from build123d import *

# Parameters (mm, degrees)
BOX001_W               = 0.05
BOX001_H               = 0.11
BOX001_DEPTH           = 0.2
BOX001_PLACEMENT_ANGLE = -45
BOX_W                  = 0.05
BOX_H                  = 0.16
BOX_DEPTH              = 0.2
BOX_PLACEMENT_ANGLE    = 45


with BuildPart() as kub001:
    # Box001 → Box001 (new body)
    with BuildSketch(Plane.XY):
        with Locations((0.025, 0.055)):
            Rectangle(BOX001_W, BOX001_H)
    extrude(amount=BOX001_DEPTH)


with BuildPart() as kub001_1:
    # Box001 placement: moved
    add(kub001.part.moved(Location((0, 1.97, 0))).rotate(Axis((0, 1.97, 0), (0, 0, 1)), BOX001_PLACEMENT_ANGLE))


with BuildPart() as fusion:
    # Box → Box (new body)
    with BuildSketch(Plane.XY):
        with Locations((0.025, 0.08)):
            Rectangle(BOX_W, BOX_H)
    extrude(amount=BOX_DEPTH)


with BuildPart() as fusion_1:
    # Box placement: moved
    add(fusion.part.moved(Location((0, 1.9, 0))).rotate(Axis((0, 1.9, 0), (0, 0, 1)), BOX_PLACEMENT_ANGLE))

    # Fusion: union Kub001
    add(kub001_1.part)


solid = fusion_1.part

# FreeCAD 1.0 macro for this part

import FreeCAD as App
import Part
import Sketcher

V = App.Vector


def add_polygon(sketch, points):
    """Adds a closed chain of lines whose ends are joined by coincident constraints."""
    first, n = sketch.GeometryCount, len(points)
    for a, b in zip(points, points[1:] + points[:1]):
        sketch.addGeometry(Part.LineSegment(App.Vector(*a, 0), App.Vector(*b, 0)), False)
    for i in range(n):
        sketch.addConstraint(Sketcher.Constraint("Coincident", first + i, 2, first + (i + 1) % n, 1))

doc = App.newDocument("Part")
body = doc.addObject("PartDesign::Body", "Body")

# Sketch on XY plane
sketch1 = body.newObject("Sketcher::SketchObject", "Sketch")
sketch1.AttachmentSupport = (doc.getObject("XY_Plane"), [""])
sketch1.MapMode = "FlatFace"
add_polygon(sketch1, [(0, 0.11), (0, 0), (0.05, 0), (0.05, 0.11)])  # lines 0-3
sketch1.addConstraint([
    Sketcher.Constraint("Vertical", 0),
    Sketcher.Constraint("Horizontal", 1),
    Sketcher.Constraint("Vertical", 2),
    Sketcher.Constraint("Horizontal", 3),
    Sketcher.Constraint("Coincident", 0, 2, -1, 1),
    Sketcher.Constraint("DistanceX", 1, 1, 1, 2, 0.05),
    Sketcher.Constraint("DistanceY", 0, 2, 0, 1, 0.11),
])
pad1 = body.newObject("PartDesign::Pad", "Pad")
pad1.Profile = sketch1
pad1.Length = 0.2
body2 = doc.addObject("PartDesign::Body", "Body001")
doc.recompute()

body.Placement = App.Placement(V(0, 1.97, 0), App.Rotation(V(0, 0, 1), 315))
boolean = body2.newObject("PartDesign::Boolean", "Boolean")
boolean.Type = "Fuse"
boolean.addObjects([body])
body3 = doc.addObject("PartDesign::Body", "Body002")

# Sketch on XY plane
sketch2 = body3.newObject("Sketcher::SketchObject", "Sketch001")
sketch2.AttachmentSupport = (doc.getObject("XY_Plane002"), [""])
sketch2.MapMode = "FlatFace"
add_polygon(sketch2, [(0, 0.16), (0, 0), (0.05, 0), (0.05, 0.16)])  # lines 0-3
sketch2.addConstraint([
    Sketcher.Constraint("Vertical", 0),
    Sketcher.Constraint("Horizontal", 1),
    Sketcher.Constraint("Vertical", 2),
    Sketcher.Constraint("Horizontal", 3),
    Sketcher.Constraint("Coincident", 0, 2, -1, 1),
    Sketcher.Constraint("DistanceX", 1, 1, 1, 2, 0.05),
    Sketcher.Constraint("DistanceY", 0, 2, 0, 1, 0.16),
])
pad2 = body3.newObject("PartDesign::Pad", "Pad001")
pad2.Profile = sketch2
pad2.Length = 0.2
body4 = doc.addObject("PartDesign::Body", "Body003")
doc.recompute()

body3.Placement = App.Placement(V(0, 1.9, 0), App.Rotation(V(0, 0, 1), 45))
boolean2 = body4.newObject("PartDesign::Boolean", "Boolean001")
boolean2.Type = "Fuse"
boolean2.addObjects([body3])
doc.recompute()

boolean3 = body4.newObject("PartDesign::Boolean", "Boolean002")
boolean3.Type = "Fuse"
boolean3.addObjects([body2])

doc.recompute()
